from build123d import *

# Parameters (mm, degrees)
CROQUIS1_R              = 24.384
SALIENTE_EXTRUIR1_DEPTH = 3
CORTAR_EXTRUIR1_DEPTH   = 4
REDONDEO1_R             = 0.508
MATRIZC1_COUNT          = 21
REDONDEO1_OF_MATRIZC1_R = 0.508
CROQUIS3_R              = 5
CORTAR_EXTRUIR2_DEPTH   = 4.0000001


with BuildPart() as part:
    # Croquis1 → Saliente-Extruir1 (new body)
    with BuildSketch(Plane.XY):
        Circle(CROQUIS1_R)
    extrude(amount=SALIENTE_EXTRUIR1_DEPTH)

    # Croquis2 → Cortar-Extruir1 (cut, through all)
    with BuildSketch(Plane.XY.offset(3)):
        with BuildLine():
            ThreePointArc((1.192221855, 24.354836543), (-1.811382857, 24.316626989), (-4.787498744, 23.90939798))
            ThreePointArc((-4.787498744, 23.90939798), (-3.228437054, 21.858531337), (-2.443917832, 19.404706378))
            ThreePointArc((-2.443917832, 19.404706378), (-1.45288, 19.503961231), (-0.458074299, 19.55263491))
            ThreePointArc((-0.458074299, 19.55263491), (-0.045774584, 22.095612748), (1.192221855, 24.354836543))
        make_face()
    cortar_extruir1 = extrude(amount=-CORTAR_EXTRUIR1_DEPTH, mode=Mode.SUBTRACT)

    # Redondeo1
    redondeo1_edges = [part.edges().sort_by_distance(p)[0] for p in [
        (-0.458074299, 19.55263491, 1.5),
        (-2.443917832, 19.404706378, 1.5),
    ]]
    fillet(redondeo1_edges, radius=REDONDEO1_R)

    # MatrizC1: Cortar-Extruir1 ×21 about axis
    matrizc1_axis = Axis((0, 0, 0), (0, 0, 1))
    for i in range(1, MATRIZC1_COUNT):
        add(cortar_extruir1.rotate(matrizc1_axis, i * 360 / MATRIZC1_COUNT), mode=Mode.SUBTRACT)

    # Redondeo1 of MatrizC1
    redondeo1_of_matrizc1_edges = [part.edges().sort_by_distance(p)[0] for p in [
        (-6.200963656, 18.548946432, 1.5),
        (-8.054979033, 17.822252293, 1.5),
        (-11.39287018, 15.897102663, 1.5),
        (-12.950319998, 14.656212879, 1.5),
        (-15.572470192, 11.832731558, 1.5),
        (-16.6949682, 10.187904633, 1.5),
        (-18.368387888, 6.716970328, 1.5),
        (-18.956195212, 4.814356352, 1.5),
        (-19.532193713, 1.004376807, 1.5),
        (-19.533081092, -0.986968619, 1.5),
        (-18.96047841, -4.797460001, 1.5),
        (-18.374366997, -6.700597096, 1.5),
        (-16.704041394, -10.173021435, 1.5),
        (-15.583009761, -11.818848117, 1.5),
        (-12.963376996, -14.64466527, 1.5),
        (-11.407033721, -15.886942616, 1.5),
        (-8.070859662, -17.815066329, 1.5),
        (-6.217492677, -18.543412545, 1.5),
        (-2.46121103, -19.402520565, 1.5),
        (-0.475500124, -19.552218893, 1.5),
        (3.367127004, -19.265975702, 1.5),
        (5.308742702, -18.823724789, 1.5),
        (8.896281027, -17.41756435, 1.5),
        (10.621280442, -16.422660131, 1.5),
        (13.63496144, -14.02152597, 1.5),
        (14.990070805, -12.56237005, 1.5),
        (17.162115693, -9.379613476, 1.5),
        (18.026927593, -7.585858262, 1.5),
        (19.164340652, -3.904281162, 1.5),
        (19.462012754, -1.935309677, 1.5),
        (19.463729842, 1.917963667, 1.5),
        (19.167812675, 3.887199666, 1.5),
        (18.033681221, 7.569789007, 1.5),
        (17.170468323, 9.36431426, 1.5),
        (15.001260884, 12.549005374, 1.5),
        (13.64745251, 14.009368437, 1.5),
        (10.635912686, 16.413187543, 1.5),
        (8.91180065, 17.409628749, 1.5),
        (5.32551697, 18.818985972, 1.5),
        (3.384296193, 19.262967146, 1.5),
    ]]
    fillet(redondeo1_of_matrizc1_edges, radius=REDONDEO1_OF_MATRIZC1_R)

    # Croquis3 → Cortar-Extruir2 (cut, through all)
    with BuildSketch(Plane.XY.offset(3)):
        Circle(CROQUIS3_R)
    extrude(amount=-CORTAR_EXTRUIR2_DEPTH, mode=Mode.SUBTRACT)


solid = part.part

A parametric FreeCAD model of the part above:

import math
import FreeCAD as App
import Part
import Sketcher

V = App.Vector


def edges_at(feature, points):
    """Names of the edges that pass closest to the given points."""
    edges = feature.Shape.Edges
    near = lambda p: min(range(len(edges)), key=lambda i: edges[i].distToShape(Part.Vertex(*p))[0])
    return sorted({f"Edge{near(p) + 1}" for p in points})

doc = App.newDocument("Part")
params = doc.addObject("Spreadsheet::Sheet", "Params")
for row, (alias, value) in enumerate([
    ("pad1_length", "3 mm"),
    ("fillet_radius", "0.508 mm"),
    ("fillet2_radius", "0.508 mm"),
    ("sketch3_diameter", "10 mm"),
], start=1):
    params.set(f"A{row}", alias)
    params.set(f"B{row}", "=" + value)
    params.setAlias(f"B{row}", alias)

body = doc.addObject("PartDesign::Body", "Body")

# Sketch on XY plane
sketch1 = doc.addObject("Sketcher::SketchObject", "Sketch")
body.addObject(sketch1)
sketch1.AttachmentSupport = (doc.XY_Plane, [""])
sketch1.MapMode = "FlatFace"
sketch1.addGeometry(Part.Circle(V(0, 0, 0), V(0, 0, 1), 24), False)
sketch1.addConstraint(Sketcher.Constraint("Coincident", 0, 3, -1, 1))
sketch1.addConstraint(Sketcher.Constraint("Diameter", 0, 48.768))
pad1 = doc.addObject("PartDesign::Pad", "Pad")
body.addObject(pad1)
pad1.Profile = sketch1
pad1.setExpression("Length", "Params.pad1_length")

# Sketch on XY plane
sketch2 = doc.addObject("Sketcher::SketchObject", "Sketch001")
body.addObject(sketch2)
sketch2.AttachmentSupport = (doc.XY_Plane, [""])
sketch2.MapMode = "FlatFace"
sketch2.AttachmentOffset = App.Placement(V(0, 0, 3), App.Rotation())
sketch2.addGeometry(Part.ArcOfCircle(Part.Circle(V(0, 0, 0), V(0, 0, 1), 24.4), math.radians(87.2), math.radians(101.32)), False)
sketch2.addGeometry(Part.ArcOfCircle(Part.Circle(V(-10, 18.4, 0), V(0, 0, 1), 7.6), math.radians(8), math.radians(47)), False)
sketch2.addGeometry(Part.ArcOfCircle(Part.Circle(V(0, 0, 0), V(0, 0, 1), 19.6), math.radians(91.34), math.radians(97.18)), False)
sketch2.addGeometry(Part.ArcOfCircle(Part.Circle(V(7.1, 19.6, 0), V(0, 0, 1), 7.6), math.radians(142), math.radians(181)), False)
sketch2.addConstraint(Sketcher.Constraint("Coincident", 0, 2, 1, 2))
sketch2.addConstraint(Sketcher.Constraint("Coincident", 1, 1, 2, 2))
sketch2.addConstraint(Sketcher.Constraint("Coincident", 2, 1, 3, 2))
sketch2.addConstraint(Sketcher.Constraint("Coincident", 3, 1, 0, 1))
sketch2.addConstraint(Sketcher.Constraint("Coincident", 0, 3, -1, 1))
sketch2.addConstraint(Sketcher.Constraint("Coincident", 2, 3, -1, 1))
sketch2.addConstraint(Sketcher.Constraint("Equal", 1, 3))
sketch2.addConstraint(Sketcher.Constraint("Radius", 0, 24.384))
sketch2.addConstraint(Sketcher.Constraint("Radius", 2, 19.558))
sketch2.addConstraint(Sketcher.Constraint("Radius", 1, 7.601398))
sketch2.addConstraint(Sketcher.Constraint("DistanceX", 0, 2, -1, 1, 4.787499))
sketch2.addConstraint(Sketcher.Constraint("DistanceY", 2, 1, 3, 1, 4.802202))
sketch2.addConstraint(Sketcher.Constraint("DistanceY", -1, 1, 1, 3, 18.350261))
sketch2.addConstraint(Sketcher.Constraint("DistanceY", -1, 1, 3, 3, 19.625169))
pocket1 = doc.addObject("PartDesign::Pocket", "Pocket")
body.addObject(pocket1)
pocket1.Profile = sketch2
pocket1.Type = "ThroughAll"
doc.recompute()

fillet = doc.addObject("PartDesign::Fillet", "Fillet")
body.addObject(fillet)
fillet.Base = (pocket1, edges_at(pocket1, [(-0.458, 19.553, 1.5), (-2.444, 19.405, 1.5)]))
fillet.setExpression("Radius", "Params.fillet_radius")
doc.recompute()

polarpattern = doc.addObject("PartDesign::PolarPattern", "PolarPattern")
body.addObject(polarpattern)
polarpattern.Originals = [pocket1]
polarpattern.Axis = (doc.Z_Axis, [""])
polarpattern.Angle = 360
polarpattern.Occurrences = 21
body.Tip = polarpattern
doc.recompute()

fillet2 = doc.addObject("PartDesign::Fillet", "Fillet001")
body.addObject(fillet2)
fillet2.Base = (polarpattern, edges_at(polarpattern, [
    (-6.201, 18.549, 1.5),
    (-8.055, 17.822, 1.5),
    (-11.393, 15.897, 1.5),
    (-12.95, 14.656, 1.5),
    (-15.572, 11.833, 1.5),
    (-16.695, 10.188, 1.5),
    (-18.368, 6.717, 1.5),
    (-18.956, 4.814, 1.5),
    (-19.532, 1.004, 1.5),
    (-19.533, -0.987, 1.5),
    (-18.96, -4.797, 1.5),
    (-18.374, -6.701, 1.5),
    (-16.704, -10.173, 1.5),
    (-15.583, -11.819, 1.5),
    (-12.963, -14.645, 1.5),
    (-11.407, -15.887, 1.5),
    (-8.071, -17.815, 1.5),
    (-6.217, -18.543, 1.5),
    (-2.461, -19.403, 1.5),
    (-0.476, -19.552, 1.5),
    (3.367, -19.266, 1.5),
    (5.309, -18.824, 1.5),
    (8.896, -17.418, 1.5),
    (10.621, -16.423, 1.5),
    (13.635, -14.022, 1.5),
    (14.99, -12.562, 1.5),
    (17.162, -9.38, 1.5),
    (18.027, -7.586, 1.5),
    (19.164, -3.904, 1.5),
    (19.462, -1.935, 1.5),
    (19.464, 1.918, 1.5),
    (19.168, 3.887, 1.5),
    (18.034, 7.57, 1.5),
    (17.17, 9.364, 1.5),
    (15.001, 12.549, 1.5),
    (13.647, 14.009, 1.5),
    (10.636, 16.413, 1.5),
    (8.912, 17.41, 1.5),
    (5.326, 18.819, 1.5),
    (3.384, 19.263, 1.5),
]))
fillet2.setExpression("Radius", "Params.fillet2_radius")

# Sketch on XY plane
sketch3 = doc.addObject("Sketcher::SketchObject", "Sketch002")
body.addObject(sketch3)
sketch3.AttachmentSupport = (doc.XY_Plane, [""])
sketch3.MapMode = "FlatFace"
sketch3.AttachmentOffset = App.Placement(V(0, 0, 3), App.Rotation())
sketch3.addGeometry(Part.Circle(V(0, 0, 0), V(0, 0, 1), 5), False)
sketch3.addConstraint(Sketcher.Constraint("Coincident", 0, 3, -1, 1))
sketch3.addConstraint(Sketcher.Constraint("Diameter", 0, 10.0))
sketch3.setExpression("Constraints[1]", "Params.sketch3_diameter")
pocket2 = doc.addObject("PartDesign::Pocket", "Pocket001")
body.addObject(pocket2)
pocket2.Profile = sketch3
pocket2.Type = "ThroughAll"

doc.recompute()
